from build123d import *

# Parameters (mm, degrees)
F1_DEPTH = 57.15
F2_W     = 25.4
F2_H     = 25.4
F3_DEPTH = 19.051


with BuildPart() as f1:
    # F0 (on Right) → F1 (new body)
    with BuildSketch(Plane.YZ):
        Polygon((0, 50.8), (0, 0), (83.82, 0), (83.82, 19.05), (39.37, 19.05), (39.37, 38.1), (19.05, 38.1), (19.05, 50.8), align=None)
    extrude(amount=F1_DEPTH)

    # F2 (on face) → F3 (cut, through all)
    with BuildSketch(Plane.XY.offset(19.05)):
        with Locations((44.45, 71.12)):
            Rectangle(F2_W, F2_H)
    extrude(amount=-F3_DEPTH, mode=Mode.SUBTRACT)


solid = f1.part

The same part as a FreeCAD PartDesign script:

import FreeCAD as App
import Part
import Sketcher
Q = App.Units.Quantity


def add_polygon(sketch, points):
    """Adds a closed chain of lines whose ends are joined by coincident constraints."""
    first, n = sketch.GeometryCount, len(points)
    for a, b in zip(points, points[1:] + points[:1]):
        sketch.addGeometry(Part.LineSegment(App.Vector(*a, 0), App.Vector(*b, 0)), False)
    for i in range(n):
        sketch.addConstraint(Sketcher.Constraint("Coincident", first + i, 2, first + (i + 1) % n, 1))

doc = App.newDocument("Part")
body = doc.addObject("PartDesign::Body", "Body")

# Sketch on YZ plane
sketch1 = body.newObject("Sketcher::SketchObject", "Sketch")
sketch1.AttachmentSupport = (doc.getObject("YZ_Plane"), [""])
sketch1.MapMode = "FlatFace"
add_polygon(sketch1, [(0, 51), (0, 0), (84, 0), (84, 19), (39, 19), (39, 38), (19, 38), (19, 51)])  # lines 0-7
sketch1.addConstraint(Sketcher.Constraint("Vertical", 0))
sketch1.addConstraint(Sketcher.Constraint("Horizontal", 1))
sketch1.addConstraint(Sketcher.Constraint("Vertical", 2))
sketch1.addConstraint(Sketcher.Constraint("Horizontal", 3))
sketch1.addConstraint(Sketcher.Constraint("Vertical", 4))
sketch1.addConstraint(Sketcher.Constraint("Horizontal", 5))
sketch1.addConstraint(Sketcher.Constraint("Vertical", 6))
sketch1.addConstraint(Sketcher.Constraint("Horizontal", 7))
sketch1.addConstraint(Sketcher.Constraint("Coincident", 0, 2, -1, 1))
sketch1.addConstraint(Sketcher.Constraint("Equal", 7, 2))
sketch1.addConstraint(Sketcher.Constraint("Equal", 2, 4))
sketch1.addConstraint(Sketcher.Constraint("DistanceY", 0, 2, 0, 1, Q("2 in")))
sketch1.addConstraint(Sketcher.Constraint("DistanceX", 1, 1, 1, 2, Q("3.3 in")))
sketch1.addConstraint(Sketcher.Constraint("DistanceX", 5, 2, 5, 1, Q("0.8 in")))
sketch1.addConstraint(Sketcher.Constraint("DistanceY", 6, 1, 6, 2, Q("0.5 in")))
pad1 = body.newObject("PartDesign::Pad", "Pad")
pad1.Profile = sketch1
pad1.Length = Q("2.25 in")

# Sketch on XY plane
sketch2 = body.newObject("Sketcher::SketchObject", "Sketch001")
sketch2.AttachmentSupport = (doc.getObject("XY_Plane"), [""])
sketch2.MapMode = "FlatFace"
sketch2.AttachmentOffset = App.Placement(App.Vector(0, 0, 0.75 * 25.4), App.Rotation())
add_polygon(sketch2, [(32, 84), (32, 58), (57, 58), (57, 84)])  # lines 0-3
sketch2.addConstraint(Sketcher.Constraint("Vertical", 0))
sketch2.addConstraint(Sketcher.Constraint("Horizontal", 1))
sketch2.addConstraint(Sketcher.Constraint("Vertical", 2))
sketch2.addConstraint(Sketcher.Constraint("Horizontal", 3))
sketch2.addConstraint(Sketcher.Constraint("Equal", 3, 0))
sketch2.addConstraint(Sketcher.Constraint("DistanceX", 1, 1, 1, 2, Q("1 in")))
sketch2.addConstraint(Sketcher.Constraint("DistanceY", -1, 1, 0, 2, Q("2.3 in")))
sketch2.addConstraint(Sketcher.Constraint("DistanceX", -1, 1, 0, 2, Q("1.25 in")))
pocket1 = body.newObject("PartDesign::Pocket", "Pocket")
pocket1.Profile = sketch2
pocket1.Type = "ThroughAll"

doc.recompute()
